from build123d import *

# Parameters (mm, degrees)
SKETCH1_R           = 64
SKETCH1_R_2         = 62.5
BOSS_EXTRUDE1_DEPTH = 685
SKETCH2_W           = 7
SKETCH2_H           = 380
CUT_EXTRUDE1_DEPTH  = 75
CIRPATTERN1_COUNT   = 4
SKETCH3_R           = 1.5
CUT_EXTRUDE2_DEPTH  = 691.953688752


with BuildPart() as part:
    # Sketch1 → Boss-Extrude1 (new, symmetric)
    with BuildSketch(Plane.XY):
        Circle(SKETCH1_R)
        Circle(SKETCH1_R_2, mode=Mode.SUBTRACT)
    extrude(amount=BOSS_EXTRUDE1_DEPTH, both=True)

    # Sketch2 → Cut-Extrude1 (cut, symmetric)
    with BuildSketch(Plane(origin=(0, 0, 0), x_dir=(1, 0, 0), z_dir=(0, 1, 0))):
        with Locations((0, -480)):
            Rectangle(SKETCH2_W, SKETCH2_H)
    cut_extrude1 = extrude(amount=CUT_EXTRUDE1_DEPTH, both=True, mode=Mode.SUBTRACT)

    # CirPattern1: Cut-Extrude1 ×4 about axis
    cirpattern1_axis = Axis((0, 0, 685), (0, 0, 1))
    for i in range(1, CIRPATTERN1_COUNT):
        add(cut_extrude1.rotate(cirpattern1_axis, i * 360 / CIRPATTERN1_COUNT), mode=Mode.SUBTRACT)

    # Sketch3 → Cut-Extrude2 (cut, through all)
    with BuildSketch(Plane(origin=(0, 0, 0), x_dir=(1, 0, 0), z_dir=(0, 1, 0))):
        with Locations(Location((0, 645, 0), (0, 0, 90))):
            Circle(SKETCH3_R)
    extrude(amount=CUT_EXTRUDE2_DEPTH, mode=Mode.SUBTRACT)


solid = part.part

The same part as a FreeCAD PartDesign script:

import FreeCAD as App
import Part
import Sketcher
from FreeCAD import Vector
Q = App.Units.Quantity


def add_polygon(sketch, points):
    """Adds a closed chain of lines whose ends are joined by coincident constraints."""
    first, n = sketch.GeometryCount, len(points)
    for a, b in zip(points, points[1:] + points[:1]):
        sketch.addGeometry(Part.LineSegment(App.Vector(*a, 0), App.Vector(*b, 0)), False)
    for i in range(n):
        sketch.addConstraint(Sketcher.Constraint("Coincident", first + i, 2, first + (i + 1) % n, 1))

doc = App.newDocument("Part")
body = doc.addObject("PartDesign::Body", "Body")

# Sketch on XY plane
sketch1 = body.newObject("Sketcher::SketchObject", "Sketch")
sketch1.AttachmentSupport = (doc.getObject("XY_Plane"), [""])
sketch1.MapMode = "FlatFace"
sketch1.addGeometry(Part.Circle(Vector(0, 0, 0), Vector(0, 0, 1), 64), False)
sketch1.addGeometry(Part.Circle(Vector(0, 0, 0), Vector(0, 0, 1), 62), False)
sketch1.addConstraint(Sketcher.Constraint("Coincident", 0, 3, -1, 1))
sketch1.addConstraint(Sketcher.Constraint("Coincident", 1, 3, -1, 1))
sketch1.addConstraint(Sketcher.Constraint("Diameter", 0, Q("128 mm")))
sketch1.addConstraint(Sketcher.Constraint("Diameter", 1, Q("125 mm")))
pad1 = body.newObject("PartDesign::Pad", "Pad")
pad1.Profile = sketch1
pad1.Length = 1370
pad1.Midplane = True

# Sketch on XZ plane
sketch2 = body.newObject("Sketcher::SketchObject", "Sketch001")
sketch2.AttachmentSupport = (doc.getObject("XZ_Plane"), [""])
sketch2.MapMode = "FlatFace"
add_polygon(sketch2, [(-4, 290), (-4, 670), (4, 670), (4, 290)])  # lines 0-3
sketch2.addConstraint(Sketcher.Constraint("Vertical", 0))
sketch2.addConstraint(Sketcher.Constraint("Horizontal", 1))
sketch2.addConstraint(Sketcher.Constraint("Vertical", 2))
sketch2.addConstraint(Sketcher.Constraint("Horizontal", 3))
sketch2.addConstraint(Sketcher.Constraint("DistanceX", 1, 1, 1, 2, Q("7 mm")))
sketch2.addConstraint(Sketcher.Constraint("DistanceY", 0, 1, 0, 2, Q("380 mm")))
sketch2.addConstraint(Sketcher.Constraint("DistanceY", -1, 1, 0, 2, Q("670 mm")))
sketch2.addConstraint(Sketcher.Constraint("DistanceX", 0, 2, -1, 1, Q("3.5 mm")))
pocket1 = body.newObject("PartDesign::Pocket", "Pocket")
pocket1.Profile = sketch2
pocket1.Length = 150
pocket1.Midplane = True
doc.recompute()

polarpattern = body.newObject("PartDesign::PolarPattern", "PolarPattern")
polarpattern.Originals = [pocket1]
polarpattern.Axis = (doc.getObject("Z_Axis"), [""])
polarpattern.Angle = 360
polarpattern.Occurrences = 4
body.Tip = polarpattern

# Sketch on XZ plane
sketch3 = body.newObject("Sketcher::SketchObject", "Sketch002")
sketch3.AttachmentSupport = (doc.getObject("XZ_Plane"), [""])
sketch3.MapMode = "FlatFace"
sketch3.addGeometry(Part.Circle(Vector(0, -645, 0), Vector(0, 0, 1), 1.5), False)
sketch3.addConstraint(Sketcher.Constraint("PointOnObject", 0, 3, -2))
sketch3.addConstraint(Sketcher.Constraint("Diameter", 0, Q("3 mm")))
sketch3.addConstraint(Sketcher.Constraint("DistanceY", 0, 3, -1, 1, Q("645 mm")))
pocket2 = body.newObject("PartDesign::Pocket", "Pocket001")
pocket2.Profile = sketch3
pocket2.Type = "ThroughAll"

doc.recompute()
